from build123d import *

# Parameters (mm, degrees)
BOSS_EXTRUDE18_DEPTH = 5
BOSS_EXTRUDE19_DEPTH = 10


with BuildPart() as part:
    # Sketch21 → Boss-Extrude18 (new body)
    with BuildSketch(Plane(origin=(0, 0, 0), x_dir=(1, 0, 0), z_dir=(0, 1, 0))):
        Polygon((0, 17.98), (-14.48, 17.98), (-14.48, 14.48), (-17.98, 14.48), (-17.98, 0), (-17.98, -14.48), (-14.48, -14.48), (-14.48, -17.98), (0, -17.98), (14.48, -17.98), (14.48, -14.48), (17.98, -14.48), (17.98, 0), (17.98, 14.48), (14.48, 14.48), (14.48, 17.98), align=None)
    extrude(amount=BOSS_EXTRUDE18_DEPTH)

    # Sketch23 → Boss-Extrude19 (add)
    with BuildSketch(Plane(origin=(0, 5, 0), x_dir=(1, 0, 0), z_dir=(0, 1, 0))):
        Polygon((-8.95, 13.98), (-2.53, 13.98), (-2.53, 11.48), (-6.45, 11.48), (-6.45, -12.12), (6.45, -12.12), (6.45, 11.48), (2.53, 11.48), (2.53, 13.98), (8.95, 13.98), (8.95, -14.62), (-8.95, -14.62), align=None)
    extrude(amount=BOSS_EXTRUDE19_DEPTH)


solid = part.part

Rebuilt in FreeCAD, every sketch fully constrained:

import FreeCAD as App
import Part
import Sketcher
from FreeCAD import Vector


def add_polygon(sketch, points):
    """Adds a closed chain of lines whose ends are joined by coincident constraints."""
    first, n = sketch.GeometryCount, len(points)
    for a, b in zip(points, points[1:] + points[:1]):
        sketch.addGeometry(Part.LineSegment(App.Vector(*a, 0), App.Vector(*b, 0)), False)
    for i in range(n):
        sketch.addConstraint(Sketcher.Constraint("Coincident", first + i, 2, first + (i + 1) % n, 1))

doc = App.newDocument("Part")
body = doc.addObject("PartDesign::Body", "Body")

# Sketch on XZ plane
sketch1 = body.newObject("Sketcher::SketchObject", "Sketch")
sketch1.AttachmentSupport = (doc.getObject("XZ_Plane"), [""])
sketch1.MapMode = "FlatFace"
add_polygon(sketch1, [(-14.5, -18), (-14.5, -14.5), (-18, -14.5), (-18, 14.5), (-14.5, 14.5), (-14.5, 18), (14.5, 18), (14.5, 14.5), (18, 14.5), (18, -14.5), (14.5, -14.5), (14.5, -18)])  # lines 0-11
sketch1.addConstraint([
    Sketcher.Constraint("Vertical", 0),
    Sketcher.Constraint("Horizontal", 1),
    Sketcher.Constraint("Vertical", 2),
    Sketcher.Constraint("Horizontal", 3),
    Sketcher.Constraint("Vertical", 4),
    Sketcher.Constraint("Horizontal", 5),
    Sketcher.Constraint("Vertical", 6),
    Sketcher.Constraint("Horizontal", 7),
    Sketcher.Constraint("Vertical", 8),
    Sketcher.Constraint("Horizontal", 9),
    Sketcher.Constraint("Vertical", 10),
    Sketcher.Constraint("Horizontal", 11),
    Sketcher.Constraint("Symmetric", 0, 2, 6, 2, -1, 1),
    Sketcher.Constraint("Symmetric", 2, 2, 8, 2, -1, 1),
    Sketcher.Constraint("Symmetric", 4, 2, 10, 2, -1, 1),
    Sketcher.Constraint("Symmetric", 3, 2, 6, 2, -2),
    Sketcher.Constraint("Equal", 9, 0),
    Sketcher.Constraint("Equal", 11, 2),
    Sketcher.Constraint("DistanceX", 1, 2, 1, 1, 3.5),
    Sketcher.Constraint("DistanceX", 5, 1, 5, 2, 28.96),
])
pad1 = body.newObject("PartDesign::Pad", "Pad")
pad1.Profile = sketch1
pad1.Length = 5
pad1.Reversed = True

# Sketch on XZ plane
sketch2 = body.newObject("Sketcher::SketchObject", "Sketch001")
sketch2.AttachmentSupport = (doc.getObject("XZ_Plane"), [""])
sketch2.MapMode = "FlatFace"
sketch2.AttachmentOffset = App.Placement(Vector(0, 0, -5), App.Rotation())
add_polygon(sketch2, [(-2.5, -14), (-8.9, -14), (-8.9, 14.6), (8.9, 14.6), (8.9, -14), (2.5, -14), (2.5, -11.5), (6.5, -11.5), (6.5, 12.1), (-6.5, 12.1), (-6.5, -11.5), (-2.5, -11.5)])  # lines 0-11
sketch2.addConstraint([
    Sketcher.Constraint("Horizontal", 0),
    Sketcher.Constraint("Vertical", 1),
    Sketcher.Constraint("Horizontal", 2),
    Sketcher.Constraint("Vertical", 3),
    Sketcher.Constraint("Horizontal", 4),
    Sketcher.Constraint("Vertical", 5),
    Sketcher.Constraint("Horizontal", 6),
    Sketcher.Constraint("Vertical", 7),
    Sketcher.Constraint("Horizontal", 8),
    Sketcher.Constraint("Vertical", 9),
    Sketcher.Constraint("Horizontal", 10),
    Sketcher.Constraint("Vertical", 11),
    Sketcher.Constraint("Symmetric", 0, 2, 3, 2, -2),
    Sketcher.Constraint("Symmetric", 6, 2, 9, 2, -2),
    Sketcher.Constraint("Equal", 0, 4),
    Sketcher.Constraint("DistanceX", 2, 1, 2, 2, 17.9),
    Sketcher.Constraint("DistanceX", 8, 2, 8, 1, 12.9),
    Sketcher.Constraint("DistanceY", 1, 1, 1, 2, 28.6),
    Sketcher.Constraint("DistanceY", 5, 1, 5, 2, 2.5),
    Sketcher.Constraint("DistanceY", 7, 1, 7, 2, 23.6),
    Sketcher.Constraint("DistanceX", 0, 2, 0, 1, 6.42),
    Sketcher.Constraint("DistanceY", 0, 2, -1, 1, 13.98),
])
pad2 = body.newObject("PartDesign::Pad", "Pad001")
pad2.Profile = sketch2
pad2.Length = 10
pad2.Reversed = True

doc.recompute()
